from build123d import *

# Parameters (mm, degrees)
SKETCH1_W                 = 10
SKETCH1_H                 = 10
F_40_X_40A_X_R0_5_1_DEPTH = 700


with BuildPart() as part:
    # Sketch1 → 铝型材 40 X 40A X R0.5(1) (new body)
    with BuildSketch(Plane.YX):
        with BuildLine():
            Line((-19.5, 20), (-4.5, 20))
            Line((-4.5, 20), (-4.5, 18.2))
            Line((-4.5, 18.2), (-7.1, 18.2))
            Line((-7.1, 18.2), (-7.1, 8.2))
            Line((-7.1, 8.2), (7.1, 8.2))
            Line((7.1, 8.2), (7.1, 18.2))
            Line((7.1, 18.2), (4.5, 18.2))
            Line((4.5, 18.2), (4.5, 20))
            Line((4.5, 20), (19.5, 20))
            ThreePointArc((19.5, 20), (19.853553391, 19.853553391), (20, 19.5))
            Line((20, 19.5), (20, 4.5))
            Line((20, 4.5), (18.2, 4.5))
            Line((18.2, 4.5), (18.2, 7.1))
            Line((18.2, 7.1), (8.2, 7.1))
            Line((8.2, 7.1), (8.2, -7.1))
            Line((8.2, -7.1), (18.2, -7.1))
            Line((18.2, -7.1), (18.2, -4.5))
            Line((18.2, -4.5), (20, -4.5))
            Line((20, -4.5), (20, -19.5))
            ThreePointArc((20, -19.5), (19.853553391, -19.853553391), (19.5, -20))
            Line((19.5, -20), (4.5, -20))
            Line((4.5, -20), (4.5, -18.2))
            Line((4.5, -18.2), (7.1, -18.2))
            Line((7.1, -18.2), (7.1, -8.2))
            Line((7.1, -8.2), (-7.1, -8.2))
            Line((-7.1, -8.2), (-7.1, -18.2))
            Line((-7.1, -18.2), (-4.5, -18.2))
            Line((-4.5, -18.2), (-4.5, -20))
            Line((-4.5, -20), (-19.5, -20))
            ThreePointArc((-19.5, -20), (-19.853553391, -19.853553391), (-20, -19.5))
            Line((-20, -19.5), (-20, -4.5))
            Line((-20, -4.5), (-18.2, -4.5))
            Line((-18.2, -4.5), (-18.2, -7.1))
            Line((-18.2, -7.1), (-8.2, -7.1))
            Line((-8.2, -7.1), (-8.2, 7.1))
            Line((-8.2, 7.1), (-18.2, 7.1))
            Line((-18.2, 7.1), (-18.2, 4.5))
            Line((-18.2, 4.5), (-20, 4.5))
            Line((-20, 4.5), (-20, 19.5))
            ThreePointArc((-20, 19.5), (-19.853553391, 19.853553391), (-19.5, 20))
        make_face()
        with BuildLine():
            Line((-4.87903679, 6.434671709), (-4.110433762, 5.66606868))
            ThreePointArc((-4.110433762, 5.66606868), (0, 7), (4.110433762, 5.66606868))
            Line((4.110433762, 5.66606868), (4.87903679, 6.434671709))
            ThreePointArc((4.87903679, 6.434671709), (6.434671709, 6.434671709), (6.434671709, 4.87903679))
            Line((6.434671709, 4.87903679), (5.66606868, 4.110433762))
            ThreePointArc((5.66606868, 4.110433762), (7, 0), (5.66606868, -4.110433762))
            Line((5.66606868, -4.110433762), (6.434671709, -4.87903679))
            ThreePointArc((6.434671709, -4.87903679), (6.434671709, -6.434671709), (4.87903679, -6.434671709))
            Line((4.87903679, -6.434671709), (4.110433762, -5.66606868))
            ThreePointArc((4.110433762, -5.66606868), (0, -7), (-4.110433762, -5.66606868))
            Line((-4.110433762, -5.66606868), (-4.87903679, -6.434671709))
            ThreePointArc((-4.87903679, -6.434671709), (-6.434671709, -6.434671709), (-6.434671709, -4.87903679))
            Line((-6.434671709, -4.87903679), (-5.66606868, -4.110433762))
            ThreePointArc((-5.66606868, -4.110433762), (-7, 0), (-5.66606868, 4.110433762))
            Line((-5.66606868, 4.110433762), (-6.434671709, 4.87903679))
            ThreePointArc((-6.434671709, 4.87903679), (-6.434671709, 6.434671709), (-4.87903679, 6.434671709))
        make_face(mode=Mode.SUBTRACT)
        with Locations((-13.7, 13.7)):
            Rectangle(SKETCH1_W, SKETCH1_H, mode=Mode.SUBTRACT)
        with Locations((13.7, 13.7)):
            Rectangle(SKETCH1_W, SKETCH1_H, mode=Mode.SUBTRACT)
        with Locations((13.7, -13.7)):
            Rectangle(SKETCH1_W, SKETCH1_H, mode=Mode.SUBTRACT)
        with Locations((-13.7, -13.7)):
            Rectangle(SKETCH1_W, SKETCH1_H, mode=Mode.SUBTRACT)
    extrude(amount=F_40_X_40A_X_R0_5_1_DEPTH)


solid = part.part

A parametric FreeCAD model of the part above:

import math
import FreeCAD as App
import Part
import Sketcher
from FreeCAD import Vector


def add_polygon(sketch, points):
    """Adds a closed chain of lines whose ends are joined by coincident constraints."""
    first, n = sketch.GeometryCount, len(points)
    for a, b in zip(points, points[1:] + points[:1]):
        sketch.addGeometry(Part.LineSegment(App.Vector(*a, 0), App.Vector(*b, 0)), False)
    for i in range(n):
        sketch.addConstraint(Sketcher.Constraint("Coincident", first + i, 2, first + (i + 1) % n, 1))

doc = App.newDocument("Part")
body = doc.addObject("PartDesign::Body", "Body")

sketch1 = doc.addObject("Sketcher::SketchObject", "Sketch")
body.addObject(sketch1)
sketch1.AttachmentSupport = (doc.XY_Plane, [""])
sketch1.MapMode = "FlatFace"
sketch1.addGeometry(Part.LineSegment(Vector(20, -4.5, 0), Vector(20, -19.5, 0)), False)
sketch1.addGeometry(Part.ArcOfCircle(Part.Circle(Vector(19.5, -19.5, 0), Vector(0, 0, 1), 0.5), math.radians(-90), math.radians(0)), False)
sketch1.addGeometry(Part.LineSegment(Vector(19.5, -20, 0), Vector(4.5, -20, 0)), False)
sketch1.addGeometry(Part.LineSegment(Vector(4.5, -20, 0), Vector(4.5, -18.2, 0)), False)
sketch1.addGeometry(Part.LineSegment(Vector(4.5, -18.2, 0), Vector(7.1, -18.2, 0)), False)
sketch1.addGeometry(Part.LineSegment(Vector(7.1, -18.2, 0), Vector(7.1, -8.2, 0)), False)
sketch1.addGeometry(Part.LineSegment(Vector(7.1, -8.2, 0), Vector(-7.1, -8.2, 0)), False)
sketch1.addGeometry(Part.LineSegment(Vector(-7.1, -8.2, 0), Vector(-7.1, -18.2, 0)), False)
sketch1.addGeometry(Part.LineSegment(Vector(-7.1, -18.2, 0), Vector(-4.5, -18.2, 0)), False)
sketch1.addGeometry(Part.LineSegment(Vector(-4.5, -18.2, 0), Vector(-4.5, -20, 0)), False)
sketch1.addGeometry(Part.LineSegment(Vector(-4.5, -20, 0), Vector(-19.5, -20, 0)), False)
sketch1.addGeometry(Part.ArcOfCircle(Part.Circle(Vector(-19.5, -19.5, 0), Vector(0, 0, 1), 0.5), math.radians(180), math.radians(270)), False)
sketch1.addGeometry(Part.LineSegment(Vector(-20, -19.5, 0), Vector(-20, -4.5, 0)), False)
sketch1.addGeometry(Part.LineSegment(Vector(-20, -4.5, 0), Vector(-18.2, -4.5, 0)), False)
sketch1.addGeometry(Part.LineSegment(Vector(-18.2, -4.5, 0), Vector(-18.2, -7.1, 0)), False)
sketch1.addGeometry(Part.LineSegment(Vector(-18.2, -7.1, 0), Vector(-8.2, -7.1, 0)), False)
sketch1.addGeometry(Part.LineSegment(Vector(-8.2, -7.1, 0), Vector(-8.2, 7.1, 0)), False)
sketch1.addGeometry(Part.LineSegment(Vector(-8.2, 7.1, 0), Vector(-18.2, 7.1, 0)), False)
sketch1.addGeometry(Part.LineSegment(Vector(-18.2, 7.1, 0), Vector(-18.2, 4.5, 0)), False)
sketch1.addGeometry(Part.LineSegment(Vector(-18.2, 4.5, 0), Vector(-20, 4.5, 0)), False)
sketch1.addGeometry(Part.LineSegment(Vector(-20, 4.5, 0), Vector(-20, 19.5, 0)), False)
sketch1.addGeometry(Part.ArcOfCircle(Part.Circle(Vector(-19.5, 19.5, 0), Vector(0, 0, 1), 0.5), math.radians(90), math.radians(180)), False)
sketch1.addGeometry(Part.LineSegment(Vector(-19.5, 20, 0), Vector(-4.5, 20, 0)), False)
sketch1.addGeometry(Part.LineSegment(Vector(-4.5, 20, 0), Vector(-4.5, 18.2, 0)), False)
sketch1.addGeometry(Part.LineSegment(Vector(-4.5, 18.2, 0), Vector(-7.1, 18.2, 0)), False)
sketch1.addGeometry(Part.LineSegment(Vector(-7.1, 18.2, 0), Vector(-7.1, 8.2, 0)), False)
sketch1.addGeometry(Part.LineSegment(Vector(-7.1, 8.2, 0), Vector(7.1, 8.2, 0)), False)
sketch1.addGeometry(Part.LineSegment(Vector(7.1, 8.2, 0), Vector(7.1, 18.2, 0)), False)
sketch1.addGeometry(Part.LineSegment(Vector(7.1, 18.2, 0), Vector(4.5, 18.2, 0)), False)
sketch1.addGeometry(Part.LineSegment(Vector(4.5, 18.2, 0), Vector(4.5, 20, 0)), False)
sketch1.addGeometry(Part.LineSegment(Vector(4.5, 20, 0), Vector(19.5, 20, 0)), False)
sketch1.addGeometry(Part.ArcOfCircle(Part.Circle(Vector(19.5, 19.5, 0), Vector(0, 0, 1), 0.5), math.radians(0), math.radians(90)), False)
sketch1.addGeometry(Part.LineSegment(Vector(20, 19.5, 0), Vector(20, 4.5, 0)), False)
sketch1.addGeometry(Part.LineSegment(Vector(20, 4.5, 0), Vector(18.2, 4.5, 0)), False)
sketch1.addGeometry(Part.LineSegment(Vector(18.2, 4.5, 0), Vector(18.2, 7.1, 0)), False)
sketch1.addGeometry(Part.LineSegment(Vector(18.2, 7.1, 0), Vector(8.2, 7.1, 0)), False)
sketch1.addGeometry(Part.LineSegment(Vector(8.2, 7.1, 0), Vector(8.2, -7.1, 0)), False)
sketch1.addGeometry(Part.LineSegment(Vector(8.2, -7.1, 0), Vector(18.2, -7.1, 0)), False)
sketch1.addGeometry(Part.LineSegment(Vector(18.2, -7.1, 0), Vector(18.2, -4.5, 0)), False)
sketch1.addGeometry(Part.LineSegment(Vector(18.2, -4.5, 0), Vector(20, -4.5, 0)), False)
add_polygon(sketch1, [(-18.7, 8.7), (-8.7, 8.7), (-8.7, 18.7), (-18.7, 18.7)])
sketch1.addGeometry(Part.LineSegment(Vector(6.43, -4.88, 0), Vector(5.67, -4.11, 0)), False)
sketch1.addGeometry(Part.ArcOfCircle(Part.Circle(Vector(0, 0, 0), Vector(0, 0, 1), 7), math.radians(-36), math.radians(36)), False)
sketch1.addGeometry(Part.LineSegment(Vector(5.67, 4.11, 0), Vector(6.43, 4.88, 0)), False)
sketch1.addGeometry(Part.ArcOfCircle(Part.Circle(Vector(5.66, 5.66, 0), Vector(0, 0, 1), 1.1), math.radians(-45), math.radians(135)), False)
sketch1.addGeometry(Part.LineSegment(Vector(4.88, 6.43, 0), Vector(4.11, 5.67, 0)), False)
sketch1.addGeometry(Part.ArcOfCircle(Part.Circle(Vector(0, 0, 0), Vector(0, 0, 1), 7), math.radians(54), math.radians(126)), False)
sketch1.addGeometry(Part.LineSegment(Vector(-4.11, 5.67, 0), Vector(-4.88, 6.43, 0)), False)
sketch1.addGeometry(Part.ArcOfCircle(Part.Circle(Vector(-5.66, 5.66, 0), Vector(0, 0, 1), 1.1), math.radians(45), math.radians(225)), False)
sketch1.addGeometry(Part.LineSegment(Vector(-6.43, 4.88, 0), Vector(-5.67, 4.11, 0)), False)
sketch1.addGeometry(Part.ArcOfCircle(Part.Circle(Vector(0, 0, 0), Vector(0, 0, 1), 7), math.radians(144), math.radians(216)), False)
sketch1.addGeometry(Part.LineSegment(Vector(-5.67, -4.11, 0), Vector(-6.43, -4.88, 0)), False)
sketch1.addGeometry(Part.ArcOfCircle(Part.Circle(Vector(-5.66, -5.66, 0), Vector(0, 0, 1), 1.1), math.radians(135), math.radians(315)), False)
sketch1.addGeometry(Part.LineSegment(Vector(-4.88, -6.43, 0), Vector(-4.11, -5.67, 0)), False)
sketch1.addGeometry(Part.ArcOfCircle(Part.Circle(Vector(0, 0, 0), Vector(0, 0, 1), 7), math.radians(-126), math.radians(-54)), False)
sketch1.addGeometry(Part.LineSegment(Vector(4.11, -5.67, 0), Vector(4.88, -6.43, 0)), False)
sketch1.addGeometry(Part.ArcOfCircle(Part.Circle(Vector(5.66, -5.66, 0), Vector(0, 0, 1), 1.1), math.radians(-135), math.radians(45)), False)
add_polygon(sketch1, [(-18.7, -18.7), (-8.7, -18.7), (-8.7, -8.7), (-18.7, -8.7)])
add_polygon(sketch1, [(8.7, 8.7), (18.7, 8.7), (18.7, 18.7), (8.7, 18.7)])
add_polygon(sketch1, [(8.7, -18.7), (18.7, -18.7), (18.7, -8.7), (8.7, -8.7)])
sketch1.addConstraint([
    Sketcher.Constraint("Tangent", 0, 2, 1, 2),
    Sketcher.Constraint("Tangent", 1, 1, 2, 1),
    Sketcher.Constraint("Coincident", 2, 2, 3, 1),
    Sketcher.Constraint("Coincident", 3, 2, 4, 1),
    Sketcher.Constraint("Coincident", 4, 2, 5, 1),
    Sketcher.Constraint("Coincident", 5, 2, 6, 1),
    Sketcher.Constraint("Coincident", 6, 2, 7, 1),
    Sketcher.Constraint("Coincident", 7, 2, 8, 1),
    Sketcher.Constraint("Coincident", 8, 2, 9, 1),
    Sketcher.Constraint("Coincident", 9, 2, 10, 1),
    Sketcher.Constraint("Tangent", 10, 2, 11, 2),
    Sketcher.Constraint("Tangent", 11, 1, 12, 1),
    Sketcher.Constraint("Coincident", 12, 2, 13, 1),
    Sketcher.Constraint("Coincident", 13, 2, 14, 1),
    Sketcher.Constraint("Coincident", 14, 2, 15, 1),
    Sketcher.Constraint("Coincident", 15, 2, 16, 1),
    Sketcher.Constraint("Coincident", 16, 2, 17, 1),
    Sketcher.Constraint("Coincident", 17, 2, 18, 1),
    Sketcher.Constraint("Coincident", 18, 2, 19, 1),
    Sketcher.Constraint("Coincident", 19, 2, 20, 1),
    Sketcher.Constraint("Tangent", 20, 2, 21, 2),
    Sketcher.Constraint("Tangent", 21, 1, 22, 1),
    Sketcher.Constraint("Coincident", 22, 2, 23, 1),
    Sketcher.Constraint("Coincident", 23, 2, 24, 1),
    Sketcher.Constraint("Coincident", 24, 2, 25, 1),
    Sketcher.Constraint("Coincident", 25, 2, 26, 1),
    Sketcher.Constraint("Coincident", 26, 2, 27, 1),
    Sketcher.Constraint("Coincident", 27, 2, 28, 1),
    Sketcher.Constraint("Coincident", 28, 2, 29, 1),
    Sketcher.Constraint("Coincident", 29, 2, 30, 1),
    Sketcher.Constraint("Tangent", 30, 2, 31, 2),
    Sketcher.Constraint("Tangent", 31, 1, 32, 1),
    Sketcher.Constraint("Coincident", 32, 2, 33, 1),
    Sketcher.Constraint("Coincident", 33, 2, 34, 1),
    Sketcher.Constraint("Coincident", 34, 2, 35, 1),
    Sketcher.Constraint("Coincident", 35, 2, 36, 1),
    Sketcher.Constraint("Coincident", 36, 2, 37, 1),
    Sketcher.Constraint("Coincident", 37, 2, 38, 1),
    Sketcher.Constraint("Coincident", 38, 2, 39, 1),
    Sketcher.Constraint("Coincident", 39, 2, 0, 1),
    Sketcher.Constraint("Coincident", 44, 2, 45, 1),
    Sketcher.Constraint("Coincident", 45, 2, 46, 1),
    Sketcher.Constraint("Tangent", 46, 2, 47, 1),
    Sketcher.Constraint("Tangent", 47, 2, 48, 1),
    Sketcher.Constraint("Coincident", 48, 2, 49, 1),
    Sketcher.Constraint("Coincident", 49, 2, 50, 1),
    Sketcher.Constraint("Tangent", 50, 2, 51, 1),
    Sketcher.Constraint("Tangent", 51, 2, 52, 1),
    Sketcher.Constraint("Coincident", 52, 2, 53, 1),
    Sketcher.Constraint("Coincident", 53, 2, 54, 1),
    Sketcher.Constraint("Tangent", 54, 2, 55, 1),
    Sketcher.Constraint("Tangent", 55, 2, 56, 1),
    Sketcher.Constraint("Coincident", 56, 2, 57, 1),
    Sketcher.Constraint("Coincident", 57, 2, 58, 1),
    Sketcher.Constraint("Tangent", 58, 2, 59, 1),
    Sketcher.Constraint("Tangent", 59, 2, 44, 1),
    Sketcher.Constraint("Vertical", 0),
    Sketcher.Constraint("Horizontal", 2),
    Sketcher.Constraint("Vertical", 3),
    Sketcher.Constraint("Horizontal", 4),
    Sketcher.Constraint("Vertical", 5),
    Sketcher.Constraint("Horizontal", 6),
    Sketcher.Constraint("Vertical", 7),
    Sketcher.Constraint("Horizontal", 8),
    Sketcher.Constraint("Vertical", 9),
    Sketcher.Constraint("Horizontal", 10),
    Sketcher.Constraint("Vertical", 12),
    Sketcher.Constraint("Horizontal", 13),
    Sketcher.Constraint("Vertical", 14),
    Sketcher.Constraint("Horizontal", 15),
    Sketcher.Constraint("Vertical", 16),
    Sketcher.Constraint("Horizontal", 17),
    Sketcher.Constraint("Vertical", 18),
    Sketcher.Constraint("Horizontal", 19),
    Sketcher.Constraint("Vertical", 20),
    Sketcher.Constraint("Horizontal", 22),
    Sketcher.Constraint("Vertical", 23),
    Sketcher.Constraint("Horizontal", 24),
    Sketcher.Constraint("Vertical", 25),
    Sketcher.Constraint("Horizontal", 26),
    Sketcher.Constraint("Vertical", 27),
    Sketcher.Constraint("Horizontal", 28),
    Sketcher.Constraint("Vertical", 29),
    Sketcher.Constraint("Horizontal", 30),
    Sketcher.Constraint("Vertical", 32),
    Sketcher.Constraint("Horizontal", 33),
    Sketcher.Constraint("Vertical", 34),
    Sketcher.Constraint("Horizontal", 35),
    Sketcher.Constraint("Vertical", 36),
    Sketcher.Constraint("Horizontal", 37),
    Sketcher.Constraint("Vertical", 38),
    Sketcher.Constraint("Horizontal", 39),
    Sketcher.Constraint("Horizontal", 40),
    Sketcher.Constraint("Vertical", 41),
    Sketcher.Constraint("Horizontal", 42),
    Sketcher.Constraint("Vertical", 43),
    Sketcher.Constraint("Horizontal", 60),
    Sketcher.Constraint("Vertical", 61),
    Sketcher.Constraint("Horizontal", 62),
    Sketcher.Constraint("Vertical", 63),
    Sketcher.Constraint("Horizontal", 64),
    Sketcher.Constraint("Vertical", 65),
    Sketcher.Constraint("Horizontal", 66),
    Sketcher.Constraint("Vertical", 67),
    Sketcher.Constraint("Horizontal", 68),
    Sketcher.Constraint("Vertical", 69),
    Sketcher.Constraint("Horizontal", 70),
    Sketcher.Constraint("Vertical", 71),
    Sketcher.Constraint("Coincident", 45, 3, -1, 1),
    Sketcher.Constraint("Coincident", 49, 3, -1, 1),
    Sketcher.Constraint("Coincident", 53, 3, -1, 1),
    Sketcher.Constraint("Coincident", 57, 3, -1, 1),
    Sketcher.Constraint("Equal", 1, 11),
    Sketcher.Constraint("Equal", 11, 21),
    Sketcher.Constraint("Equal", 21, 31),
    Sketcher.Constraint("Equal", 45, 49),
    Sketcher.Constraint("Equal", 47, 51),
    Sketcher.Constraint("Equal", 49, 53),
    Sketcher.Constraint("Equal", 51, 55),
    Sketcher.Constraint("Equal", 53, 57),
    Sketcher.Constraint("Equal", 55, 59),
    Sketcher.Constraint("Symmetric", 1, 3, 21, 3, -1, 1),
    Sketcher.Constraint("Symmetric", 11, 3, 31, 3, -1, 1),
    Sketcher.Constraint("Symmetric", 47, 3, 55, 3, -1, 1),
    Sketcher.Constraint("Symmetric", 51, 3, 59, 3, -1, 1),
    Sketcher.Constraint("Symmetric", 3, 2, 23, 2, -1, 1),
    Sketcher.Constraint("Symmetric", 5, 2, 25, 2, -1, 1),
    Sketcher.Constraint("Symmetric", 7, 2, 27, 2, -1, 1),
    Sketcher.Constraint("Symmetric", 13, 2, 33, 2, -1, 1),
    Sketcher.Constraint("Symmetric", 15, 2, 35, 2, -1, 1),
    Sketcher.Constraint("Symmetric", 17, 2, 37, 2, -1, 1),
    Sketcher.Constraint("Symmetric", 62, 2, 64, 2, -1, 1),
    Sketcher.Constraint("Symmetric", 60, 2, 66, 2, -1, 1),
    Sketcher.Constraint("Symmetric", 42, 2, 68, 2, -1, 1),
    Sketcher.Constraint("Symmetric", 40, 2, 70, 2, -1, 1),
    Sketcher.Constraint("Symmetric", 1, 3, 11, 3, -2),
    Sketcher.Constraint("Symmetric", 47, 3, 51, 3, -2),
    Sketcher.Constraint("Symmetric", 4, 2, 7, 2, -2),
    Sketcher.Constraint("Symmetric", 18, 2, 33, 2, -2),
    Sketcher.Constraint("Symmetric", 43, 2, 64, 2, -2),
    Sketcher.Constraint("Symmetric", 41, 2, 66, 2, -2),
    Sketcher.Constraint("Perpendicular", 44, 46),
    Sketcher.Constraint("Parallel", 46, 48),
    Sketcher.Constraint("Perpendicular", 48, 50),
    Sketcher.Constraint("Parallel", 50, 52),
    Sketcher.Constraint("Perpendicular", 52, 54),
    Sketcher.Constraint("Parallel", 54, 56),
    Sketcher.Constraint("Perpendicular", 56, 58),
    Sketcher.Constraint("Horizontal", 17, 2, 34, 2),
    Sketcher.Constraint("Horizontal", 13, 2, 38, 2),
    Sketcher.Constraint("Horizontal", 48, 2, 49, 2),
    Sketcher.Constraint("Vertical", 9, 2, 22, 2),
    Sketcher.Constraint("Vertical", 3, 2, 28, 2),
    Sketcher.Constraint("Equal", 37, 40),
    Sketcher.Constraint("Equal", 30, 0),
    Sketcher.Constraint("Equal", 39, 3),
    Sketcher.Constraint("Equal", 70, 5),
    Sketcher.Constraint("Equal", 28, 14),
    Sketcher.Constraint("Equal", 26, 16),
    Sketcher.Constraint("Equal", 27, 41),
    Sketcher.Constraint("Equal", 46, 48),
    Sketcher.Constraint("Radius", 45, 7.0),
    Sketcher.Constraint("Radius", 1, 0.5),
    Sketcher.Constraint("Radius", 47, 1.1),
    Sketcher.Constraint("DistanceX", 2, 2, 2, 1, 15.0),
    Sketcher.Constraint("DistanceX", 15, 1, 15, 2, 10.0),
    Sketcher.Constraint("DistanceX", 4, 1, 4, 2, 2.6),
    Sketcher.Constraint("DistanceX", 6, 2, 6, 1, 14.2),
    Sketcher.Constraint("DistanceX", 13, 1, 13, 2, 1.8),
    Sketcher.Constraint("DistanceX", 40, 2, -1, 1, 8.7),
    Sketcher.Constraint("DistanceY", -1, 1, 40, 2, 8.7),
    Sketcher.Constraint("Distance", 44, 1.086969),
])
pad1 = doc.addObject("PartDesign::Pad", "Pad")
body.addObject(pad1)
pad1.Profile = sketch1
pad1.Length = 700
pad1.Reversed = True

doc.recompute()
